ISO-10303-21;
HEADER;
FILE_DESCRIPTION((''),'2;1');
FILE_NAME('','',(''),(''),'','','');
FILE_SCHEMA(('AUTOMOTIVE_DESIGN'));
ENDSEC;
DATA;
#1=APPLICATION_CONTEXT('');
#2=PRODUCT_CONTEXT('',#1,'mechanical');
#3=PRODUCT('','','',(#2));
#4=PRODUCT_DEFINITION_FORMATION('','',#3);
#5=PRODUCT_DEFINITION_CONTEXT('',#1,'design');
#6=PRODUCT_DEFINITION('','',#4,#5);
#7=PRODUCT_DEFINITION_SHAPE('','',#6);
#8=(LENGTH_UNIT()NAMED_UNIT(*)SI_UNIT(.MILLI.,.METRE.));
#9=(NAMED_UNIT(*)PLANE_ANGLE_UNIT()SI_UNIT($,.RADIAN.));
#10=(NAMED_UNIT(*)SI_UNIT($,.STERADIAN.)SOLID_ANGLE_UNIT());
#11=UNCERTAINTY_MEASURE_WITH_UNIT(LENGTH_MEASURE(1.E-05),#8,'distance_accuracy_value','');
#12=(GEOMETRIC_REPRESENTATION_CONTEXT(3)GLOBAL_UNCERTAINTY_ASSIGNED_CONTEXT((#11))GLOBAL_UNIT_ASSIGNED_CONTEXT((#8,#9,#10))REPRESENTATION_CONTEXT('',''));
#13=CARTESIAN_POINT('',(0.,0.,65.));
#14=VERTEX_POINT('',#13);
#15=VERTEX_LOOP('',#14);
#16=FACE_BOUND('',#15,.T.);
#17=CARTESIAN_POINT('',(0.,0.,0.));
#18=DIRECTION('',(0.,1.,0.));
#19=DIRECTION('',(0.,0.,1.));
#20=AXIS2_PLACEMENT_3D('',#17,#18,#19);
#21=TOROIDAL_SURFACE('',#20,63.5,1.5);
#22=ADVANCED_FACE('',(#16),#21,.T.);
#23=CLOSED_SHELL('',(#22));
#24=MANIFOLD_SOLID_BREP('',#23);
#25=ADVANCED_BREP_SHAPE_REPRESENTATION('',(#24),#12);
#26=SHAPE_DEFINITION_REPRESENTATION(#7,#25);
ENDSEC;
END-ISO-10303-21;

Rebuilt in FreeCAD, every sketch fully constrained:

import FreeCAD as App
import Part
import Sketcher
from FreeCAD import Vector

doc = App.newDocument("Part")
body = doc.addObject("PartDesign::Body", "Body")

sketch1 = body.newObject("Sketcher::SketchObject", "Sketch")
sketch1.AttachmentSupport = (doc.getObject("XY_Plane"), [""])
sketch1.MapMode = "FlatFace"
sketch1.addGeometry(Part.Circle(Vector(-63.5, 0, 0), Vector(0, 0, 1), 1.5), False)
sketch1.addConstraint(Sketcher.Constraint("PointOnObject", 0, 3, -1))
sketch1.addConstraint(Sketcher.Constraint("Diameter", 0, 3.0))
sketch1.addConstraint(Sketcher.Constraint("DistanceX", 0, 3, -1, 1, 63.5))
revolution = body.newObject("PartDesign::Revolution", "Revolution")
revolution.Profile = sketch1
revolution.ReferenceAxis = (sketch1, ["V_Axis"])
revolution.Angle = 360

doc.recompute()
